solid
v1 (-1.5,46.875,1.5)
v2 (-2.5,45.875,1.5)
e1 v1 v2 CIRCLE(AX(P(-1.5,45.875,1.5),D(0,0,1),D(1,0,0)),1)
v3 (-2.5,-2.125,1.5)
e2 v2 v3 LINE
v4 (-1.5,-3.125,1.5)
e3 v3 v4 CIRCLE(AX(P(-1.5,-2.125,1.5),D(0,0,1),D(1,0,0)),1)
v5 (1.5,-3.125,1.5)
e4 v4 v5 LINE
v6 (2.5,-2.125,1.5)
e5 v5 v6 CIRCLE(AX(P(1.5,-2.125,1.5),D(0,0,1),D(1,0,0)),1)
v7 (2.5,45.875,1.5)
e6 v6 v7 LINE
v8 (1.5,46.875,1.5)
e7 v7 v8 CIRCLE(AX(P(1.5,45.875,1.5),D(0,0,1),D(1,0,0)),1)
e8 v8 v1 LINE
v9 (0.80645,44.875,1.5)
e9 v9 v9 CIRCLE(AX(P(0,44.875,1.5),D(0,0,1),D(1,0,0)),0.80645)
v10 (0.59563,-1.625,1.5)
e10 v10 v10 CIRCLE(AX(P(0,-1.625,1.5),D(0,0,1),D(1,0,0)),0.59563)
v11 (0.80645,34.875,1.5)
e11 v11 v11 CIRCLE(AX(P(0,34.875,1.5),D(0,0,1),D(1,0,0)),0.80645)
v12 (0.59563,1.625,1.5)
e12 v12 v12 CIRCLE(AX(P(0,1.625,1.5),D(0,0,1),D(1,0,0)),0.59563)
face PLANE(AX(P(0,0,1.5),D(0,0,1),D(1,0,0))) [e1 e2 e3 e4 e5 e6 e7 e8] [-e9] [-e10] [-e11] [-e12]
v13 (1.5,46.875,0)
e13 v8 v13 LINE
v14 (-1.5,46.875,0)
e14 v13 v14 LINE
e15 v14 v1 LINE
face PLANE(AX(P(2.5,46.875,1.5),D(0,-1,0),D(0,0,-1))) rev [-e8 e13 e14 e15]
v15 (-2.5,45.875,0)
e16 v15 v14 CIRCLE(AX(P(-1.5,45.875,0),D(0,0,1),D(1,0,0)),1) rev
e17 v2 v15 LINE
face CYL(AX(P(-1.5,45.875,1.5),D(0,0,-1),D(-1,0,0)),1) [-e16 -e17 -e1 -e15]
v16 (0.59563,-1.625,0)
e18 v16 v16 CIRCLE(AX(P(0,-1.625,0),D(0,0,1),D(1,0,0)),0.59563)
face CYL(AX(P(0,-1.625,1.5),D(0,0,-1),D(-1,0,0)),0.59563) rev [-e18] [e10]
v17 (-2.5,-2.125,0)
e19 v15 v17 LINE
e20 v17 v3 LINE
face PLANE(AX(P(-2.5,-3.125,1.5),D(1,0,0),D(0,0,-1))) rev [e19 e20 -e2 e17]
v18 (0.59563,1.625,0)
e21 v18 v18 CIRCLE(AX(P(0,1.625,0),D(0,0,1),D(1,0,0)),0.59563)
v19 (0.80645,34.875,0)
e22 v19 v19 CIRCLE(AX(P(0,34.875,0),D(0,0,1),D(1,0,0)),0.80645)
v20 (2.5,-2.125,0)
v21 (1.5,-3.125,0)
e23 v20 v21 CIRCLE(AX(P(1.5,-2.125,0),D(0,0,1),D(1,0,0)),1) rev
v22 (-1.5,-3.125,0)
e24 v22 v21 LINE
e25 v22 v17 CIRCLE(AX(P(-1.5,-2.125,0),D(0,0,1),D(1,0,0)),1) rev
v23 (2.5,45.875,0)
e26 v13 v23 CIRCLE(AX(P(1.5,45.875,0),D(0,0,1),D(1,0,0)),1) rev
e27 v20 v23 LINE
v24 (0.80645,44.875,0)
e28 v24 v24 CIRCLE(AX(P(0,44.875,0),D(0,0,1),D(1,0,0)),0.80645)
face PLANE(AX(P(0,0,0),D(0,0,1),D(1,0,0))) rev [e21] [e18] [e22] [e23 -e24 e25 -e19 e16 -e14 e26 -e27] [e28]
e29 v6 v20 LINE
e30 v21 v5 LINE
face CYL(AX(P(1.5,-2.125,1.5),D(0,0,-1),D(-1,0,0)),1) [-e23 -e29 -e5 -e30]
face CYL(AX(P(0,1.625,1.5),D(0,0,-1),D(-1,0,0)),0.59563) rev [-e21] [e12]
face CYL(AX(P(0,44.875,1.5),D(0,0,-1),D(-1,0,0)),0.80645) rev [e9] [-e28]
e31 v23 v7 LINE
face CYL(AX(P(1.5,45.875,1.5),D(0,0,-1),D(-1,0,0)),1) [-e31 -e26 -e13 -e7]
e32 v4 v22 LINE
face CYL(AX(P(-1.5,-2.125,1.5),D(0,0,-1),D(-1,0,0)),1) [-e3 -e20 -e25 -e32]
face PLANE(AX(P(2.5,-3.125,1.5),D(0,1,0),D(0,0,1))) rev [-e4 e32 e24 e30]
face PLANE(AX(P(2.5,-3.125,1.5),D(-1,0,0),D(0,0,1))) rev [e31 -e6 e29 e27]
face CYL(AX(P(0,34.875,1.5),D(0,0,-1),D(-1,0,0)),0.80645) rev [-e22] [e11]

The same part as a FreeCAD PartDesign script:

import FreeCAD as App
import Part
import Sketcher
Q = App.Units.Quantity


def edges_at(feature, points):
    """Names of the edges that pass closest to the given points."""
    edges = feature.Shape.Edges
    near = lambda p: min(range(len(edges)), key=lambda i: edges[i].distToShape(Part.Vertex(*p))[0])
    return sorted({f"Edge{near(p) + 1}" for p in points})


def add_polygon(sketch, points):
    """Adds a closed chain of lines whose ends are joined by coincident constraints."""
    first, n = sketch.GeometryCount, len(points)
    for a, b in zip(points, points[1:] + points[:1]):
        sketch.addGeometry(Part.LineSegment(App.Vector(*a, 0), App.Vector(*b, 0)), False)
    for i in range(n):
        sketch.addConstraint(Sketcher.Constraint("Coincident", first + i, 2, first + (i + 1) % n, 1))

doc = App.newDocument("Part")
body = doc.addObject("PartDesign::Body", "Body")

sketch1 = body.newObject("Sketcher::SketchObject", "Sketch")
sketch1.AttachmentSupport = (doc.getObject("XY_Plane"), [""])
sketch1.MapMode = "FlatFace"
add_polygon(sketch1, [(-2.5, 46.9), (-2.5, -3.1), (2.5, -3.1), (2.5, 46.9)])
sketch1.addGeometry(Part.Circle(App.Vector(0, -1.6, 0), App.Vector(0, 0, 1), 0.6), False)
sketch1.addGeometry(Part.Circle(App.Vector(0, 1.6, 0), App.Vector(0, 0, 1), 0.6), False)
sketch1.addGeometry(Part.Circle(App.Vector(0, 34.9, 0), App.Vector(0, 0, 1), 0.8), False)
sketch1.addGeometry(Part.Circle(App.Vector(0, 44.9, 0), App.Vector(0, 0, 1), 0.8), False)
sketch1.addConstraint([
    Sketcher.Constraint("Vertical", 0),
    Sketcher.Constraint("Horizontal", 1),
    Sketcher.Constraint("Vertical", 2),
    Sketcher.Constraint("Horizontal", 3),
    Sketcher.Constraint("Equal", 4, 5),
    Sketcher.Constraint("Equal", 6, 7),
    Sketcher.Constraint("Symmetric", 4, 3, 5, 3, -1, 1),
    Sketcher.Constraint("PointOnObject", 4, 3, -2),
    Sketcher.Constraint("PointOnObject", 6, 3, -2),
    Sketcher.Constraint("PointOnObject", 7, 3, -2),
    Sketcher.Constraint("DistanceX", 1, 1, 1, 2, Q("5 mm")),
    Sketcher.Constraint("DistanceY", 0, 2, 0, 1, Q("50 mm")),
    Sketcher.Constraint("DistanceY", 6, 3, 7, 3, Q("10 mm")),
    Sketcher.Constraint("DistanceY", 0, 2, 6, 3, Q("38 mm")),
    Sketcher.Constraint("Diameter", 6, Q("1.6129 mm")),
    Sketcher.Constraint("DistanceX", 0, 2, -1, 1, Q("2.5 mm")),
    Sketcher.Constraint("DistanceY", 4, 3, 6, 3, Q("36.5 mm")),
    Sketcher.Constraint("Diameter", 4, Q("1.19126 mm")),
    Sketcher.Constraint("DistanceY", 4, 3, 5, 3, Q("3.25 mm")),
])
pad1 = body.newObject("PartDesign::Pad", "Pad")
pad1.Profile = sketch1
pad1.Length = 1.5
doc.recompute()

fillet = body.newObject("PartDesign::Fillet", "Fillet")
fillet.Base = (pad1, edges_at(pad1, [
    (2.5, -3.125, 0.75),
    (-2.5, -3.125, 0.75),
    (-2.5, 46.875, 0.75),
    (2.5, 46.875, 0.75),
]))
fillet.Radius = 1

doc.recompute()
